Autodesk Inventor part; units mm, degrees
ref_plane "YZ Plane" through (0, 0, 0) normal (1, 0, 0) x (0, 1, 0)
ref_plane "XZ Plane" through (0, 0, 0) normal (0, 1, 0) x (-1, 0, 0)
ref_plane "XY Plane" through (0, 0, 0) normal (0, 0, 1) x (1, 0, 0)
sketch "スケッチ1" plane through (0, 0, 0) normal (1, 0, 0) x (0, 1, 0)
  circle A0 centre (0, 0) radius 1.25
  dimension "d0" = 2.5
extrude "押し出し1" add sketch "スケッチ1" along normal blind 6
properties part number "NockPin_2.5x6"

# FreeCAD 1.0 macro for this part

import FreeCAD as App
import Part
import Sketcher

V = App.Vector

doc = App.newDocument("Part")
params = doc.addObject("Spreadsheet::Sheet", "Params")
for row, (alias, value) in enumerate([
    ("sketch1_diameter", "2.5 mm"),
    ("pad1_length", "6 mm"),
], start=1):
    params.set(f"A{row}", alias)
    params.set(f"B{row}", "=" + value)
    params.setAlias(f"B{row}", alias)

body = doc.addObject("PartDesign::Body", "Body")

sketch1 = doc.addObject("Sketcher::SketchObject", "Sketch")
body.addObject(sketch1)
sketch1.AttachmentSupport = (doc.YZ_Plane, [""])
sketch1.MapMode = "FlatFace"
sketch1.addGeometry(Part.Circle(V(0, 0, 0), V(0, 0, 1), 1.25), False)
sketch1.addConstraint([
    Sketcher.Constraint("Coincident", 0, 3, -1, 1),
    Sketcher.Constraint("Diameter", 0, 2.5),
])
sketch1.setExpression("Constraints[1]", "Params.sketch1_diameter")
pad1 = doc.addObject("PartDesign::Pad", "Pad")
body.addObject(pad1)
pad1.Profile = sketch1
pad1.setExpression("Length", "Params.pad1_length")

doc.recompute()
